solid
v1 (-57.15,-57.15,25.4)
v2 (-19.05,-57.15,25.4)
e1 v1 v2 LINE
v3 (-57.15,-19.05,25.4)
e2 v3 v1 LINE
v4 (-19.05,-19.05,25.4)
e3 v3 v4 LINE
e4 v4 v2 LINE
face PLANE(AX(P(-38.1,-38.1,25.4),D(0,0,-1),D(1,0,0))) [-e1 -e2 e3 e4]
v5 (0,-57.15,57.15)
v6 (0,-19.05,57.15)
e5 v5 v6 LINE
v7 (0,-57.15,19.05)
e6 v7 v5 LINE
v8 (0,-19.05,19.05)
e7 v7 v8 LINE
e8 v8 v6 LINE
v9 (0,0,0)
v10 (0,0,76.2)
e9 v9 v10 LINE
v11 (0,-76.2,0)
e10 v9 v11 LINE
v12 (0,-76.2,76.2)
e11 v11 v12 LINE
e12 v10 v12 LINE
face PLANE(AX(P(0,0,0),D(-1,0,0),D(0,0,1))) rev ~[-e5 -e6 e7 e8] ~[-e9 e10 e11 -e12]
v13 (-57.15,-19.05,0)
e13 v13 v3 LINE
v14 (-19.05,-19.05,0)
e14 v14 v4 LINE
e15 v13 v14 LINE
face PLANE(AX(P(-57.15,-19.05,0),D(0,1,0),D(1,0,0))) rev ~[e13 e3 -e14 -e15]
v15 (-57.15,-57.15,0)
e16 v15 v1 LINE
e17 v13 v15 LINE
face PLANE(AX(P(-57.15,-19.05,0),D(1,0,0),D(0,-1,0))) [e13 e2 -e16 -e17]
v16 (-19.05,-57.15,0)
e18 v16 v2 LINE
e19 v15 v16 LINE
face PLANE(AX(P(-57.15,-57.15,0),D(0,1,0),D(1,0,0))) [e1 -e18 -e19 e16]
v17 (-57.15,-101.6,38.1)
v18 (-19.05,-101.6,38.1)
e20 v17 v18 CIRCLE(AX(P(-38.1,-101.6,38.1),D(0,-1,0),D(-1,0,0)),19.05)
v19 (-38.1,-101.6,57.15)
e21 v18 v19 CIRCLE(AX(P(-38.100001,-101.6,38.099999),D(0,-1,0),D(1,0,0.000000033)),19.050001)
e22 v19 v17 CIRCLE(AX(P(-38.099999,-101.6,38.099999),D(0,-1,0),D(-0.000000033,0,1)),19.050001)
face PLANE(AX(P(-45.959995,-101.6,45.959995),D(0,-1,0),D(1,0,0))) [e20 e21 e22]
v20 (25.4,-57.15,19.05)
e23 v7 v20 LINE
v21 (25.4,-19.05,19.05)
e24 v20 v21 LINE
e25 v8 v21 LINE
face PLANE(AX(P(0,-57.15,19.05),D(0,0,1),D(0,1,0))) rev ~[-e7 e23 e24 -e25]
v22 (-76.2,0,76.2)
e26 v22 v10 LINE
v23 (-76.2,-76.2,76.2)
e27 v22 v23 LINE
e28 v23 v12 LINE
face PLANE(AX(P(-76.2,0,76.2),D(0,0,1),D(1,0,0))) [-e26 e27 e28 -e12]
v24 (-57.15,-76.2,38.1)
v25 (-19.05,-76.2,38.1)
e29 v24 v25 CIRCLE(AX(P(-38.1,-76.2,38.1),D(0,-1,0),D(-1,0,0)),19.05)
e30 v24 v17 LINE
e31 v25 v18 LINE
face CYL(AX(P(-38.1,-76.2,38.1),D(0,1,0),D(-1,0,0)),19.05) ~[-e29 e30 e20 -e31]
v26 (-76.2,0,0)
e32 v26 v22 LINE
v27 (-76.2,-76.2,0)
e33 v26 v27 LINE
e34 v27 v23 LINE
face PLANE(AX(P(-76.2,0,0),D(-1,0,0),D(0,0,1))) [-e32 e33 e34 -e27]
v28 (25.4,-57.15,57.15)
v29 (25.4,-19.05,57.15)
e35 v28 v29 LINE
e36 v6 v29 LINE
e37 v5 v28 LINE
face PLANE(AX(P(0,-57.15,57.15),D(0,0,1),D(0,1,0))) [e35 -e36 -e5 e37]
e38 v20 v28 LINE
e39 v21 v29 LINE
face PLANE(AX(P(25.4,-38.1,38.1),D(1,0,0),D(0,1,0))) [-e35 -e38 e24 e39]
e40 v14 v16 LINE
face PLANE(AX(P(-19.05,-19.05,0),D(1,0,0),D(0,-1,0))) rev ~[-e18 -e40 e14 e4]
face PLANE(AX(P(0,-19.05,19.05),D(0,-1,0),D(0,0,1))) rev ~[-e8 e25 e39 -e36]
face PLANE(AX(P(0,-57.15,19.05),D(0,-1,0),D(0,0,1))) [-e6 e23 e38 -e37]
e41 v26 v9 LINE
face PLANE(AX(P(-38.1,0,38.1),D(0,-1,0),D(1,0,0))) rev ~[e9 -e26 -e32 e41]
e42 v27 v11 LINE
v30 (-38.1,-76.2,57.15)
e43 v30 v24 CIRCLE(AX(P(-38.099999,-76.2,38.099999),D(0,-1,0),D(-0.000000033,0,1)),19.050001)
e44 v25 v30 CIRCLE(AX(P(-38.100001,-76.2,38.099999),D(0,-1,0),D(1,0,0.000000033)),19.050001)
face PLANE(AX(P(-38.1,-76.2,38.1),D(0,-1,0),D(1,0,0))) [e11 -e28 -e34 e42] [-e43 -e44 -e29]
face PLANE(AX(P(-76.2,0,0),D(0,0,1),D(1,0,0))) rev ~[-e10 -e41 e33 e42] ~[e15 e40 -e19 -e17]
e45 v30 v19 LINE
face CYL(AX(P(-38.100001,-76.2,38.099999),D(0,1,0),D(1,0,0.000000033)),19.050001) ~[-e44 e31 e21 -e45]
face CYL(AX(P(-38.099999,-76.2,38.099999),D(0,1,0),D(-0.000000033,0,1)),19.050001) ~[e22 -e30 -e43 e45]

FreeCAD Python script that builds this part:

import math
import FreeCAD as App
import Part
import Sketcher
Q = App.Units.Quantity

doc = App.newDocument("Part")
body = doc.addObject("PartDesign::Body", "Body")

sketch1 = body.newObject("Sketcher::SketchObject", "Sketch")
sketch1.AttachmentSupport = (doc.getObject("XZ_Plane"), [""])
sketch1.MapMode = "FlatFace"
sketch1.addGeometry(Part.LineSegment(App.Vector(-76, 76, 0), App.Vector(-76, 0, 0)), False)
sketch1.addGeometry(Part.LineSegment(App.Vector(-76, 0, 0), App.Vector(0, 0, 0)), False)
sketch1.addGeometry(Part.LineSegment(App.Vector(0, 0, 0), App.Vector(0, 76, 0)), False)
sketch1.addGeometry(Part.LineSegment(App.Vector(0, 76, 0), App.Vector(-76, 76, 0)), False)
sketch1.addConstraint(Sketcher.Constraint("Coincident", 0, 2, 1, 1))
sketch1.addConstraint(Sketcher.Constraint("Coincident", 1, 2, 2, 1))
sketch1.addConstraint(Sketcher.Constraint("Coincident", 2, 2, 3, 1))
sketch1.addConstraint(Sketcher.Constraint("Coincident", 3, 2, 0, 1))
sketch1.addConstraint(Sketcher.Constraint("Vertical", 0))
sketch1.addConstraint(Sketcher.Constraint("Horizontal", 1))
sketch1.addConstraint(Sketcher.Constraint("Vertical", 2))
sketch1.addConstraint(Sketcher.Constraint("Horizontal", 3))
sketch1.addConstraint(Sketcher.Constraint("Coincident", 1, 2, -1, 1))
sketch1.addConstraint(Sketcher.Constraint("Equal", 3, 0))
sketch1.addConstraint(Sketcher.Constraint("DistanceX", 1, 1, 1, 2, Q("3 in")))
pad1 = body.newObject("PartDesign::Pad", "Pad")
pad1.Profile = sketch1
pad1.Length = Q("3 in")

sketch2 = body.newObject("Sketcher::SketchObject", "Sketch001")
sketch2.AttachmentSupport = (doc.getObject("XZ_Plane"), [""])
sketch2.MapMode = "FlatFace"
sketch2.AttachmentOffset = App.Placement(App.Vector(0, 0, 3 * 25.4), App.Rotation())
sketch2.addGeometry(Part.ArcOfCircle(Part.Circle(App.Vector(-38, 38, 0), App.Vector(0, 0, 1), 19), math.radians(90), math.radians(180)), False)
sketch2.addGeometry(Part.ArcOfCircle(Part.Circle(App.Vector(-38, 38, 0), App.Vector(0, 0, 1), 19), math.radians(180), math.radians(360)), False)
sketch2.addGeometry(Part.ArcOfCircle(Part.Circle(App.Vector(-38, 38, 0), App.Vector(0, 0, 1), 19), math.radians(0), math.radians(90)), False)
sketch2.addConstraint(Sketcher.Constraint("Tangent", 0, 2, 1, 1))
sketch2.addConstraint(Sketcher.Constraint("Tangent", 1, 2, 2, 1))
sketch2.addConstraint(Sketcher.Constraint("Tangent", 2, 2, 0, 1))
sketch2.addConstraint(Sketcher.Constraint("Horizontal", 2, 3, 0, 2))
sketch2.addConstraint(Sketcher.Constraint("Horizontal", 0, 2, 1, 2))
sketch2.addConstraint(Sketcher.Constraint("Vertical", 1, 3, 2, 2))
sketch2.addConstraint(Sketcher.Constraint("Radius", 0, Q("0.75 in")))
sketch2.addConstraint(Sketcher.Constraint("DistanceX", 0, 3, -1, 1, Q("1.5 in")))
sketch2.addConstraint(Sketcher.Constraint("DistanceY", -1, 1, 0, 3, Q("1.5 in")))
pad2 = body.newObject("PartDesign::Pad", "Pad001")
pad2.Profile = sketch2
pad2.Length = Q("1 in")

sketch3 = body.newObject("Sketcher::SketchObject", "Sketch002")
sketch3.AttachmentSupport = (doc.getObject("YZ_Plane"), [""])
sketch3.MapMode = "FlatFace"
sketch3.addGeometry(Part.LineSegment(App.Vector(-57, 57, 0), App.Vector(-57, 19, 0)), False)
sketch3.addGeometry(Part.LineSegment(App.Vector(-57, 19, 0), App.Vector(-19, 19, 0)), False)
sketch3.addGeometry(Part.LineSegment(App.Vector(-19, 19, 0), App.Vector(-19, 57, 0)), False)
sketch3.addGeometry(Part.LineSegment(App.Vector(-19, 57, 0), App.Vector(-57, 57, 0)), False)
sketch3.addConstraint(Sketcher.Constraint("Coincident", 0, 2, 1, 1))
sketch3.addConstraint(Sketcher.Constraint("Coincident", 1, 2, 2, 1))
sketch3.addConstraint(Sketcher.Constraint("Coincident", 2, 2, 3, 1))
sketch3.addConstraint(Sketcher.Constraint("Coincident", 3, 2, 0, 1))
sketch3.addConstraint(Sketcher.Constraint("Vertical", 0))
sketch3.addConstraint(Sketcher.Constraint("Horizontal", 1))
sketch3.addConstraint(Sketcher.Constraint("Vertical", 2))
sketch3.addConstraint(Sketcher.Constraint("Horizontal", 3))
sketch3.addConstraint(Sketcher.Constraint("Equal", 3, 0))
sketch3.addConstraint(Sketcher.Constraint("DistanceX", 1, 1, 1, 2, Q("1.5 in")))
sketch3.addConstraint(Sketcher.Constraint("DistanceX", 0, 2, -1, 1, Q("2.25 in")))
sketch3.addConstraint(Sketcher.Constraint("DistanceY", -1, 1, 0, 2, Q("0.75 in")))
pad3 = body.newObject("PartDesign::Pad", "Pad002")
pad3.Profile = sketch3
pad3.Length = Q("1 in")

sketch4 = body.newObject("Sketcher::SketchObject", "Sketch003")
sketch4.AttachmentSupport = (doc.getObject("XY_Plane"), [""])
sketch4.MapMode = "FlatFace"
sketch4.addGeometry(Part.LineSegment(App.Vector(-57, -57, 0), App.Vector(-57, -19, 0)), False)
sketch4.addGeometry(Part.LineSegment(App.Vector(-57, -19, 0), App.Vector(-19, -19, 0)), False)
sketch4.addGeometry(Part.LineSegment(App.Vector(-19, -19, 0), App.Vector(-19, -57, 0)), False)
sketch4.addGeometry(Part.LineSegment(App.Vector(-19, -57, 0), App.Vector(-57, -57, 0)), False)
sketch4.addConstraint(Sketcher.Constraint("Coincident", 0, 2, 1, 1))
sketch4.addConstraint(Sketcher.Constraint("Coincident", 1, 2, 2, 1))
sketch4.addConstraint(Sketcher.Constraint("Coincident", 2, 2, 3, 1))
sketch4.addConstraint(Sketcher.Constraint("Coincident", 3, 2, 0, 1))
sketch4.addConstraint(Sketcher.Constraint("Vertical", 0))
sketch4.addConstraint(Sketcher.Constraint("Horizontal", 1))
sketch4.addConstraint(Sketcher.Constraint("Vertical", 2))
sketch4.addConstraint(Sketcher.Constraint("Horizontal", 3))
sketch4.addConstraint(Sketcher.Constraint("Equal", 3, 0))
sketch4.addConstraint(Sketcher.Constraint("DistanceX", 1, 1, 1, 2, Q("1.5 in")))
sketch4.addConstraint(Sketcher.Constraint("DistanceX", 0, 2, -1, 1, Q("2.25 in")))
sketch4.addConstraint(Sketcher.Constraint("DistanceY", 0, 2, -1, 1, Q("0.75 in")))
pocket1 = body.newObject("PartDesign::Pocket", "Pocket")
pocket1.Profile = sketch4
pocket1.Length = Q("1 in")
pocket1.Reversed = True

doc.recompute()
